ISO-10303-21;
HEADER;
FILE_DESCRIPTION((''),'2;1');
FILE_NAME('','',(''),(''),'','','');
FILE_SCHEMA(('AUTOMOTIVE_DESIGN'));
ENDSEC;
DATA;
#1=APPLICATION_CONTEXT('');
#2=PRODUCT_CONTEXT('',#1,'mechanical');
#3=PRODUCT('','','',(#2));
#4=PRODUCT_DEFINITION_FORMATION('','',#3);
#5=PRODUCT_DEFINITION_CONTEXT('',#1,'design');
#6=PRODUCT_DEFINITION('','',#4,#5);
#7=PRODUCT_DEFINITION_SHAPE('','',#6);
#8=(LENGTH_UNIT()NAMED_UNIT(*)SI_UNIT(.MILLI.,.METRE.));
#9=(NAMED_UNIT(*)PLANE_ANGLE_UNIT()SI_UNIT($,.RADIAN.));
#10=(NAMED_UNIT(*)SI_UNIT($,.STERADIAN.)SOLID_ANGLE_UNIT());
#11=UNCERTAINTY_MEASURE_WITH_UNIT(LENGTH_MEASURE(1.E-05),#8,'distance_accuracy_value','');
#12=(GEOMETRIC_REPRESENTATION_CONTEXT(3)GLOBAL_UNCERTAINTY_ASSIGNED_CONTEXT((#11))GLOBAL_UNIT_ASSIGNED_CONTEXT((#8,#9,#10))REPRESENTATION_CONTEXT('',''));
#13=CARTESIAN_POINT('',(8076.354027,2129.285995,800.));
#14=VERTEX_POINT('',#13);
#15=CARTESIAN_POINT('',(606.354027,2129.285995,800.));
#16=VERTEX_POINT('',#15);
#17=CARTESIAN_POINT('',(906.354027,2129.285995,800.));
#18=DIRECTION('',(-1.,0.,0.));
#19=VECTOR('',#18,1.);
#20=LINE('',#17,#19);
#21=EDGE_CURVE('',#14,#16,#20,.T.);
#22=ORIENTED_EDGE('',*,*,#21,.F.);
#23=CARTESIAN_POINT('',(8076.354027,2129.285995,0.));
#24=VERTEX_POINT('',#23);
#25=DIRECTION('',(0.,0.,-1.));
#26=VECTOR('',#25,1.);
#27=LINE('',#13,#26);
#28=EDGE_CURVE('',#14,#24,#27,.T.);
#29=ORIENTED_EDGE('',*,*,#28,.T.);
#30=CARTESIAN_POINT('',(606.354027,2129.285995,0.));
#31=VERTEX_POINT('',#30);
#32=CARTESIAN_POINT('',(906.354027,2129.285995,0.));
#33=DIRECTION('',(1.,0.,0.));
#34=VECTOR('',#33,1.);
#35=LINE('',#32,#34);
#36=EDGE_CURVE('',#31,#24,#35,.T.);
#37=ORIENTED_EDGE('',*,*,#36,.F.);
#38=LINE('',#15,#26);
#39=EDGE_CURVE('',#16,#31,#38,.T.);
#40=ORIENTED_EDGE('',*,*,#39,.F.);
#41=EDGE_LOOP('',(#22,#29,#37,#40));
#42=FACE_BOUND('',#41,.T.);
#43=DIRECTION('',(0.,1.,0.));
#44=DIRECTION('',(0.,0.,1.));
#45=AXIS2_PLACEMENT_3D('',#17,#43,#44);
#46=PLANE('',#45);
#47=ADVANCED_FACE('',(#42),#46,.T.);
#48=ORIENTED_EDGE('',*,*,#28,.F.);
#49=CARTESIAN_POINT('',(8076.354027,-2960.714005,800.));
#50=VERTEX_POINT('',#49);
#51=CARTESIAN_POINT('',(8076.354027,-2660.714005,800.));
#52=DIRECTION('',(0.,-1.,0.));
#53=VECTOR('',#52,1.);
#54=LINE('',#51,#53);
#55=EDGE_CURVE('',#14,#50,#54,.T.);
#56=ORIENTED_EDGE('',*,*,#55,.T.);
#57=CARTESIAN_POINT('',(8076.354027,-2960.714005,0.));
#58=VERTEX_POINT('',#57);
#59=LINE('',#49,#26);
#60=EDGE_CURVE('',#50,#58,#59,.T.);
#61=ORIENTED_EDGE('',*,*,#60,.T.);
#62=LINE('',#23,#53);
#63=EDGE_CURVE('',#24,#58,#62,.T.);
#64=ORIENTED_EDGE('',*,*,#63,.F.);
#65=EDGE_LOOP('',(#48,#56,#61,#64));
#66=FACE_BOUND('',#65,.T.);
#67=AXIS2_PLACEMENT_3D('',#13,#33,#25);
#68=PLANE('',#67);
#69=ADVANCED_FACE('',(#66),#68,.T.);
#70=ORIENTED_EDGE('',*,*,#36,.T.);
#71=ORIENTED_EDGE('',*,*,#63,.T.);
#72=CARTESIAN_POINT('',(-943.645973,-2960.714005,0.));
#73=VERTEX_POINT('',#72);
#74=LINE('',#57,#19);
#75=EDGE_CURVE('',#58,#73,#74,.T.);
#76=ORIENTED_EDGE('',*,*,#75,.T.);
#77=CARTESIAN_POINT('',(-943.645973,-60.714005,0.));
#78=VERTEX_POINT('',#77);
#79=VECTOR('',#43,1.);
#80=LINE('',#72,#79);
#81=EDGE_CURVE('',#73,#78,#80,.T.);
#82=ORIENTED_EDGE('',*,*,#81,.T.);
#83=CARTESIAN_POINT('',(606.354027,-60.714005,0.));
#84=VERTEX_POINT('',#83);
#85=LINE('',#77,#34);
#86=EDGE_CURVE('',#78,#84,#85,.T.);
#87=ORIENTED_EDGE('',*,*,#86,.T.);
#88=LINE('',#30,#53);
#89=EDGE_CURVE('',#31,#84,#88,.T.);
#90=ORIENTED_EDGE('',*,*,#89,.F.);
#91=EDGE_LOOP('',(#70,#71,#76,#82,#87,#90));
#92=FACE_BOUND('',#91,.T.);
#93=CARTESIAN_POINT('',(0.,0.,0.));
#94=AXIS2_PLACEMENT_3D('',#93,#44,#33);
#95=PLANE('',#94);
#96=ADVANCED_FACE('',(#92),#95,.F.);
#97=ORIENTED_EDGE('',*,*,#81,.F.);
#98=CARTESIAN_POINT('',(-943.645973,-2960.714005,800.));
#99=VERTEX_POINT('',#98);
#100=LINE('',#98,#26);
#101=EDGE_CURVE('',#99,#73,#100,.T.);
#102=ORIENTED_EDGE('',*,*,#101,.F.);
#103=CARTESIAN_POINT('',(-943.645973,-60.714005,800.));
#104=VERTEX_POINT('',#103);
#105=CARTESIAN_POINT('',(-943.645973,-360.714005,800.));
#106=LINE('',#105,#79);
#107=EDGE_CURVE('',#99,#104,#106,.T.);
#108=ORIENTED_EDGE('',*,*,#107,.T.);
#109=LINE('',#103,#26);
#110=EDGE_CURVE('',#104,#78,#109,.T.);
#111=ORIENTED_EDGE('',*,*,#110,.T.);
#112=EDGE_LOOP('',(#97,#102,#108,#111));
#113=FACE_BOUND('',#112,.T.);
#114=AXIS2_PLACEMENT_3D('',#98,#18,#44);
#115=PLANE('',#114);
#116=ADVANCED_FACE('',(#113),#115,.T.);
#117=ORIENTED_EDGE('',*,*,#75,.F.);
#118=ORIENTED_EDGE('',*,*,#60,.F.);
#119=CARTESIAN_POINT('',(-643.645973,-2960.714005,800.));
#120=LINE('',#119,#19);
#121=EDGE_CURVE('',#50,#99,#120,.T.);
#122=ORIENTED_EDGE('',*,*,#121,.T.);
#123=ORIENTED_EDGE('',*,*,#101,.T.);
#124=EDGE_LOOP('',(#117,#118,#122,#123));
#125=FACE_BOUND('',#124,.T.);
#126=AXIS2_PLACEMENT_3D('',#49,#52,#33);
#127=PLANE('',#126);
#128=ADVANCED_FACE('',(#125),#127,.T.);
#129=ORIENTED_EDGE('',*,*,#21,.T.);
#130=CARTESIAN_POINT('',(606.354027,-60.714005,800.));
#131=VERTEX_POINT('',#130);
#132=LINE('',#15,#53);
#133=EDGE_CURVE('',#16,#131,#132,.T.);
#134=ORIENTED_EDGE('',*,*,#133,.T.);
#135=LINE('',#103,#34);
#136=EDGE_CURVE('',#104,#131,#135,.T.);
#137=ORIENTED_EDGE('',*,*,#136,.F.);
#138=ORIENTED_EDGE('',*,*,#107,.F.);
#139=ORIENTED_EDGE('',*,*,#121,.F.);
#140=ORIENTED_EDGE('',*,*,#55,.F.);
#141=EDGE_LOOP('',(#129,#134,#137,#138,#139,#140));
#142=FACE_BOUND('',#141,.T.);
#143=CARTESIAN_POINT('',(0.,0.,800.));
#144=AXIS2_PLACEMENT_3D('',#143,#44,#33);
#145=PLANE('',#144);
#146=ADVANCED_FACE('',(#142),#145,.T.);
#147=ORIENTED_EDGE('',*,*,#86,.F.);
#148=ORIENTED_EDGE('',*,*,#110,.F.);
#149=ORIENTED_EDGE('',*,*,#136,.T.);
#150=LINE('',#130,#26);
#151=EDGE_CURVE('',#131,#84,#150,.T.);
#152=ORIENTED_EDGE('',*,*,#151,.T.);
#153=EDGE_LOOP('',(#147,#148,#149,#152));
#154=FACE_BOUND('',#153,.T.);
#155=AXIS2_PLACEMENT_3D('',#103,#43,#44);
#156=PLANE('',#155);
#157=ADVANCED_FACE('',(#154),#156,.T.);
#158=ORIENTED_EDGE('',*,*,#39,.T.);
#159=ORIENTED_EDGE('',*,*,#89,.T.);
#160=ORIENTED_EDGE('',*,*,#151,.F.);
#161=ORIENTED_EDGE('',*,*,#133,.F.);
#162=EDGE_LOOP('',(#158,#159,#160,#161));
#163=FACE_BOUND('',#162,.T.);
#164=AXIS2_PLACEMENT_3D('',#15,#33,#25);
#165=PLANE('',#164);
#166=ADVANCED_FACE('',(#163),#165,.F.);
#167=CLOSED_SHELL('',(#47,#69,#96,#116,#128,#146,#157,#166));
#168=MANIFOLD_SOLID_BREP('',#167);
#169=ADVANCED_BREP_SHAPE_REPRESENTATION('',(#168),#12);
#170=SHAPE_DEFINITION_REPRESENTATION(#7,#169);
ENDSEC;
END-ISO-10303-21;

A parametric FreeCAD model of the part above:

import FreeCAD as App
import Part
import Sketcher
from FreeCAD import Vector
Q = App.Units.Quantity

doc = App.newDocument("Part")
body = doc.addObject("PartDesign::Body", "Body")

# Sketch on XY plane
sketch1 = body.newObject("Sketcher::SketchObject", "Sketch")
sketch1.AttachmentSupport = (doc.getObject("XY_Plane"), [""])
sketch1.MapMode = "FlatFace"
sketch1.addGeometry([
    Part.LineSegment(Vector(8076, 2129, 0), Vector(606, 2129, 0)),  # 0
    Part.LineSegment(Vector(606, 2129, 0), Vector(606, -61, 0)),  # 1
    Part.LineSegment(Vector(606, -61, 0), Vector(-944, -61, 0)),  # 2
    Part.LineSegment(Vector(-944, -61, 0), Vector(-944, -2961, 0)),  # 3
    Part.LineSegment(Vector(-944, -2961, 0), Vector(8076, -2961, 0)),  # 4
    Part.LineSegment(Vector(8076, -2961, 0), Vector(8076, 2129, 0)),  # 5
], False)
sketch1.addConstraint([
    Sketcher.Constraint("Coincident", 0, 2, 1, 1),
    Sketcher.Constraint("Coincident", 1, 2, 2, 1),
    Sketcher.Constraint("Coincident", 2, 2, 3, 1),
    Sketcher.Constraint("Coincident", 3, 2, 4, 1),
    Sketcher.Constraint("Coincident", 4, 2, 5, 1),
    Sketcher.Constraint("Coincident", 5, 2, 0, 1),
    Sketcher.Constraint("Horizontal", 0),
    Sketcher.Constraint("Vertical", 1),
    Sketcher.Constraint("Horizontal", 2),
    Sketcher.Constraint("Vertical", 3),
    Sketcher.Constraint("Horizontal", 4),
    Sketcher.Constraint("Vertical", 5),
    Sketcher.Constraint("DistanceX", 0, 2, 0, 1, Q("7470 mm")),
    Sketcher.Constraint("DistanceX", 2, 2, 2, 1, Q("1550 mm")),
    Sketcher.Constraint("DistanceY", 1, 2, 1, 1, Q("2190 mm")),
    Sketcher.Constraint("DistanceY", 3, 2, 3, 1, Q("2900 mm")),
    Sketcher.Constraint("DistanceX", -1, 1, 0, 2, Q("606.354027 mm")),
    Sketcher.Constraint("DistanceY", -1, 1, 0, 2, Q("2129.285995 mm")),
])
pad1 = body.newObject("PartDesign::Pad", "Pad")
pad1.Profile = sketch1
pad1.Length = 800

doc.recompute()
